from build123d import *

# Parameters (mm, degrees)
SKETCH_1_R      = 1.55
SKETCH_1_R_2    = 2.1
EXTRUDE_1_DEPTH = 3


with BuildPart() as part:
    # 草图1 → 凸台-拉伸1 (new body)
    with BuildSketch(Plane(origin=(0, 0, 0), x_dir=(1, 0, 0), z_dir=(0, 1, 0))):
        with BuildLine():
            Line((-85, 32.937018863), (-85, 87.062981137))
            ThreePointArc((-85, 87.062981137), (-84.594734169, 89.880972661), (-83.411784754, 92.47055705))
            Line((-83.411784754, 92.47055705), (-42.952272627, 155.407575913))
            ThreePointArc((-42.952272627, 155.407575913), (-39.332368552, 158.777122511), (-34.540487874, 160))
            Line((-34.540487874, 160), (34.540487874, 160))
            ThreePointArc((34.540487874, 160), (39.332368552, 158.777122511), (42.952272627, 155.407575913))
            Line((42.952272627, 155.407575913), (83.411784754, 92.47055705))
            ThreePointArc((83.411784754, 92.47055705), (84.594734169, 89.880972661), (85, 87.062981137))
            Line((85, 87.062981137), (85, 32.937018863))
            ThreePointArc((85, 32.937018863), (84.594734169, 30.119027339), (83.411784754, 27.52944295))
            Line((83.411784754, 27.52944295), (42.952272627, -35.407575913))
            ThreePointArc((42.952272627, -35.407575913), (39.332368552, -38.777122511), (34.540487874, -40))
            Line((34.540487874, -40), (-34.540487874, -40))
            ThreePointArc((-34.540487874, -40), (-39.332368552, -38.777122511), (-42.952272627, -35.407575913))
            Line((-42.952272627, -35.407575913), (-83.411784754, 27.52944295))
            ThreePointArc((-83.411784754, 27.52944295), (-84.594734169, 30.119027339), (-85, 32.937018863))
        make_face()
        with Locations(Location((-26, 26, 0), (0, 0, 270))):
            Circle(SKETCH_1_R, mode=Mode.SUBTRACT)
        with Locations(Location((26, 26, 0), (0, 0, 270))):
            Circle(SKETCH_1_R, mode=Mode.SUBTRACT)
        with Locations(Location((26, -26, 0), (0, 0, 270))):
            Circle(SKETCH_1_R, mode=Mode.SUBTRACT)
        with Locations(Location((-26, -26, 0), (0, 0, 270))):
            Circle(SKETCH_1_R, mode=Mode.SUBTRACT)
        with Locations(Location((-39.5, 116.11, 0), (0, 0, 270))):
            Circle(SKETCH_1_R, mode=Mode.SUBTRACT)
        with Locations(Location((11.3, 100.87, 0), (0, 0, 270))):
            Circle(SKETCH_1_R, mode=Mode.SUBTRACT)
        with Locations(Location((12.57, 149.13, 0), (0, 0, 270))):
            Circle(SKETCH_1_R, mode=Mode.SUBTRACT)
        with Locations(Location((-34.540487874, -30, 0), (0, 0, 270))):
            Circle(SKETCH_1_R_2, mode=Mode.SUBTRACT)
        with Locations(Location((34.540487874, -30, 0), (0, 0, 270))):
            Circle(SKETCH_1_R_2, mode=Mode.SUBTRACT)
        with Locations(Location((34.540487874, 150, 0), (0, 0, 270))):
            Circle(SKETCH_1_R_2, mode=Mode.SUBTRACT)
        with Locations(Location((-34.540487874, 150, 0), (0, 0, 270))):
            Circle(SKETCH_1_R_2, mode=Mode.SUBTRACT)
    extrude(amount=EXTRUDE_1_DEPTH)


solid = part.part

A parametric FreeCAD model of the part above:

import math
import FreeCAD as App
import Part
import Sketcher
from FreeCAD import Vector
Q = App.Units.Quantity

doc = App.newDocument("Part")
params = doc.addObject("Spreadsheet::Sheet", "Params")
for row, (alias, value) in enumerate([
    ("sketch1_radius", "10 mm"),
    ("sketch1_diameter", "4.2 mm"),
    ("sketch1_diameter2", "3.1 mm"),
    ("pad1_length", "3 mm"),
], start=1):
    params.set(f"A{row}", alias)
    params.set(f"B{row}", "=" + value)
    params.setAlias(f"B{row}", alias)

body = doc.addObject("PartDesign::Body", "Body")

# Sketch on XZ plane
sketch1 = body.newObject("Sketcher::SketchObject", "Sketch")
sketch1.AttachmentSupport = (doc.getObject("XZ_Plane"), [""])
sketch1.MapMode = "FlatFace"
sketch1.addGeometry(Part.LineSegment(Vector(-85, -87.062981, 0), Vector(-85, -32.937019, 0)), False)
sketch1.addGeometry(Part.ArcOfCircle(Part.Circle(Vector(-75, -32.937019, 0), Vector(0, 0, 1), 10), math.radians(147.264774), math.radians(180)), False)
sketch1.addGeometry(Part.LineSegment(Vector(-83.411785, -27.529443, 0), Vector(-42.952273, 35.407576, 0)), False)
sketch1.addGeometry(Part.ArcOfCircle(Part.Circle(Vector(-34.540488, 30, 0), Vector(0, 0, 1), 10), math.radians(90), math.radians(147.264774)), False)
sketch1.addGeometry(Part.LineSegment(Vector(-34.540488, 40, 0), Vector(34.540488, 40, 0)), False)
sketch1.addGeometry(Part.ArcOfCircle(Part.Circle(Vector(34.540488, 30, 0), Vector(0, 0, 1), 10), math.radians(32.735226), math.radians(90)), False)
sketch1.addGeometry(Part.LineSegment(Vector(42.952273, 35.407576, 0), Vector(83.411785, -27.529443, 0)), False)
sketch1.addGeometry(Part.ArcOfCircle(Part.Circle(Vector(75, -32.937019, 0), Vector(0, 0, 1), 10), math.radians(0), math.radians(32.735226)), False)
sketch1.addGeometry(Part.LineSegment(Vector(85, -32.937019, 0), Vector(85, -87.062981, 0)), False)
sketch1.addGeometry(Part.ArcOfCircle(Part.Circle(Vector(75, -87.062981, 0), Vector(0, 0, 1), 10), math.radians(-32.735226), math.radians(0)), False)
sketch1.addGeometry(Part.LineSegment(Vector(83.411785, -92.470557, 0), Vector(42.952273, -155.407576, 0)), False)
sketch1.addGeometry(Part.ArcOfCircle(Part.Circle(Vector(34.540488, -150, 0), Vector(0, 0, 1), 10), math.radians(-90), math.radians(-32.735226)), False)
sketch1.addGeometry(Part.LineSegment(Vector(34.540488, -160, 0), Vector(-34.540488, -160, 0)), False)
sketch1.addGeometry(Part.ArcOfCircle(Part.Circle(Vector(-34.540488, -150, 0), Vector(0, 0, 1), 10), math.radians(-147.264774), math.radians(-90)), False)
sketch1.addGeometry(Part.LineSegment(Vector(-42.952273, -155.407576, 0), Vector(-83.411785, -92.470557, 0)), False)
sketch1.addGeometry(Part.ArcOfCircle(Part.Circle(Vector(-75, -87.062981, 0), Vector(0, 0, 1), 10), math.radians(180), math.radians(212.735226)), False)
sketch1.addGeometry(Part.Circle(Vector(34.540488, 30, 0), Vector(0, 0, 1), 2.1), False)
sketch1.addGeometry(Part.Circle(Vector(26, 26, 0), Vector(0, 0, 1), 1.55), False)
sketch1.addGeometry(Part.Circle(Vector(26, -26, 0), Vector(0, 0, 1), 1.55), False)
sketch1.addGeometry(Part.Circle(Vector(-26, 26, 0), Vector(0, 0, 1), 1.55), False)
sketch1.addGeometry(Part.Circle(Vector(-34.540488, 30, 0), Vector(0, 0, 1), 2.1), False)
sketch1.addGeometry(Part.Circle(Vector(-26, -26, 0), Vector(0, 0, 1), 1.55), False)
sketch1.addGeometry(Part.Circle(Vector(11.3, -100.87, 0), Vector(0, 0, 1), 1.55), False)
sketch1.addGeometry(Part.Circle(Vector(34.540488, -150, 0), Vector(0, 0, 1), 2.1), False)
sketch1.addGeometry(Part.Circle(Vector(12.57, -149.13, 0), Vector(0, 0, 1), 1.55), False)
sketch1.addGeometry(Part.Circle(Vector(-39.5, -116.11, 0), Vector(0, 0, 1), 1.55), False)
sketch1.addGeometry(Part.Circle(Vector(-34.540488, -150, 0), Vector(0, 0, 1), 2.1), False)
sketch1.addConstraint(Sketcher.Constraint("Tangent", 0, 2, 1, 2))
sketch1.addConstraint(Sketcher.Constraint("Tangent", 1, 1, 2, 1))
sketch1.addConstraint(Sketcher.Constraint("Tangent", 2, 2, 3, 2))
sketch1.addConstraint(Sketcher.Constraint("Tangent", 3, 1, 4, 1))
sketch1.addConstraint(Sketcher.Constraint("Tangent", 4, 2, 5, 2))
sketch1.addConstraint(Sketcher.Constraint("Tangent", 5, 1, 6, 1))
sketch1.addConstraint(Sketcher.Constraint("Tangent", 6, 2, 7, 2))
sketch1.addConstraint(Sketcher.Constraint("Tangent", 7, 1, 8, 1))
sketch1.addConstraint(Sketcher.Constraint("Tangent", 8, 2, 9, 2))
sketch1.addConstraint(Sketcher.Constraint("Tangent", 9, 1, 10, 1))
sketch1.addConstraint(Sketcher.Constraint("Tangent", 10, 2, 11, 2))
sketch1.addConstraint(Sketcher.Constraint("Tangent", 11, 1, 12, 1))
sketch1.addConstraint(Sketcher.Constraint("Tangent", 12, 2, 13, 2))
sketch1.addConstraint(Sketcher.Constraint("Tangent", 13, 1, 14, 1))
sketch1.addConstraint(Sketcher.Constraint("Tangent", 14, 2, 15, 2))
sketch1.addConstraint(Sketcher.Constraint("Tangent", 15, 1, 0, 1))
sketch1.addConstraint(Sketcher.Constraint("Vertical", 0))
sketch1.addConstraint(Sketcher.Constraint("Horizontal", 4))
sketch1.addConstraint(Sketcher.Constraint("Vertical", 8))
sketch1.addConstraint(Sketcher.Constraint("Horizontal", 12))
sketch1.addConstraint(Sketcher.Constraint("Coincident", 16, 3, 5, 3))
sketch1.addConstraint(Sketcher.Constraint("Coincident", 20, 3, 3, 3))
sketch1.addConstraint(Sketcher.Constraint("Coincident", 23, 3, 11, 3))
sketch1.addConstraint(Sketcher.Constraint("Coincident", 26, 3, 13, 3))
sketch1.addConstraint(Sketcher.Constraint("Equal", 1, 3))
sketch1.addConstraint(Sketcher.Constraint("Equal", 3, 5))
sketch1.addConstraint(Sketcher.Constraint("Equal", 5, 7))
sketch1.addConstraint(Sketcher.Constraint("Equal", 7, 9))
sketch1.addConstraint(Sketcher.Constraint("Equal", 9, 11))
sketch1.addConstraint(Sketcher.Constraint("Equal", 11, 13))
sketch1.addConstraint(Sketcher.Constraint("Equal", 13, 15))
sketch1.addConstraint(Sketcher.Constraint("Equal", 17, 18))
sketch1.addConstraint(Sketcher.Constraint("Equal", 18, 19))
sketch1.addConstraint(Sketcher.Constraint("Equal", 16, 20))
sketch1.addConstraint(Sketcher.Constraint("Equal", 19, 21))
sketch1.addConstraint(Sketcher.Constraint("Equal", 21, 22))
sketch1.addConstraint(Sketcher.Constraint("Equal", 20, 23))
sketch1.addConstraint(Sketcher.Constraint("Equal", 22, 24))
sketch1.addConstraint(Sketcher.Constraint("Equal", 24, 25))
sketch1.addConstraint(Sketcher.Constraint("Equal", 23, 26))
sketch1.addConstraint(Sketcher.Constraint("Symmetric", 18, 3, 19, 3, -1, 1))
sketch1.addConstraint(Sketcher.Constraint("Symmetric", 17, 3, 21, 3, -1, 1))
sketch1.addConstraint(Sketcher.Constraint("Symmetric", 1, 3, 7, 3, -2))
sketch1.addConstraint(Sketcher.Constraint("Symmetric", 17, 3, 19, 3, -2))
sketch1.addConstraint(Sketcher.Constraint("Symmetric", 10, 2, 13, 1, -2))
sketch1.addConstraint(Sketcher.Constraint("Parallel", 2, 10))
sketch1.addConstraint(Sketcher.Constraint("Parallel", 6, 14))
sketch1.addConstraint(Sketcher.Constraint("Vertical", 5, 3, 11, 3))
sketch1.addConstraint(Sketcher.Constraint("Radius", 1, Q("10 mm")))
sketch1.addConstraint(Sketcher.Constraint("Diameter", 16, Q("4.2 mm")))
sketch1.addConstraint(Sketcher.Constraint("Diameter", 17, Q("3.1 mm")))
sketch1.addConstraint(Sketcher.Constraint("DistanceX", 1, 3, -1, 1, Q("75 mm")))
sketch1.addConstraint(Sketcher.Constraint("DistanceY", -1, 1, 3, 3, Q("30 mm")))
sketch1.addConstraint(Sketcher.Constraint("DistanceY", 11, 3, -1, 1, Q("150 mm")))
sketch1.addConstraint(Sketcher.Constraint("DistanceX", -1, 1, 17, 3, Q("26 mm")))
sketch1.addConstraint(Sketcher.Constraint("DistanceY", -1, 1, 17, 3, Q("26 mm")))
sketch1.addConstraint(Sketcher.Constraint("DistanceX", -1, 1, 22, 3, Q("11.3 mm")))
sketch1.addConstraint(Sketcher.Constraint("DistanceX", 25, 3, -1, 1, Q("39.5 mm")))
sketch1.addConstraint(Sketcher.Constraint("DistanceY", 22, 3, -1, 1, Q("100.87 mm")))
sketch1.addConstraint(Sketcher.Constraint("DistanceX", -1, 1, 24, 3, Q("12.57 mm")))
sketch1.addConstraint(Sketcher.Constraint("DistanceY", 24, 3, -1, 1, Q("149.13 mm")))
sketch1.addConstraint(Sketcher.Constraint("DistanceY", 25, 3, -1, 1, Q("116.11 mm")))
sketch1.addConstraint(Sketcher.Constraint("DistanceX", 4, 1, 4, 2, Q("69.080976 mm")))
sketch1.addConstraint(Sketcher.Constraint("DistanceY", 0, 1, 0, 2, Q("54.125962 mm")))
sketch1.setExpression("Constraints[48]", "Params.sketch1_radius")
sketch1.setExpression("Constraints[49]", "Params.sketch1_diameter")
sketch1.setExpression("Constraints[50]", "Params.sketch1_diameter2")
pad1 = body.newObject("PartDesign::Pad", "Pad")
pad1.Profile = sketch1
pad1.setExpression("Length", "Params.pad1_length")
pad1.Reversed = True

doc.recompute()
